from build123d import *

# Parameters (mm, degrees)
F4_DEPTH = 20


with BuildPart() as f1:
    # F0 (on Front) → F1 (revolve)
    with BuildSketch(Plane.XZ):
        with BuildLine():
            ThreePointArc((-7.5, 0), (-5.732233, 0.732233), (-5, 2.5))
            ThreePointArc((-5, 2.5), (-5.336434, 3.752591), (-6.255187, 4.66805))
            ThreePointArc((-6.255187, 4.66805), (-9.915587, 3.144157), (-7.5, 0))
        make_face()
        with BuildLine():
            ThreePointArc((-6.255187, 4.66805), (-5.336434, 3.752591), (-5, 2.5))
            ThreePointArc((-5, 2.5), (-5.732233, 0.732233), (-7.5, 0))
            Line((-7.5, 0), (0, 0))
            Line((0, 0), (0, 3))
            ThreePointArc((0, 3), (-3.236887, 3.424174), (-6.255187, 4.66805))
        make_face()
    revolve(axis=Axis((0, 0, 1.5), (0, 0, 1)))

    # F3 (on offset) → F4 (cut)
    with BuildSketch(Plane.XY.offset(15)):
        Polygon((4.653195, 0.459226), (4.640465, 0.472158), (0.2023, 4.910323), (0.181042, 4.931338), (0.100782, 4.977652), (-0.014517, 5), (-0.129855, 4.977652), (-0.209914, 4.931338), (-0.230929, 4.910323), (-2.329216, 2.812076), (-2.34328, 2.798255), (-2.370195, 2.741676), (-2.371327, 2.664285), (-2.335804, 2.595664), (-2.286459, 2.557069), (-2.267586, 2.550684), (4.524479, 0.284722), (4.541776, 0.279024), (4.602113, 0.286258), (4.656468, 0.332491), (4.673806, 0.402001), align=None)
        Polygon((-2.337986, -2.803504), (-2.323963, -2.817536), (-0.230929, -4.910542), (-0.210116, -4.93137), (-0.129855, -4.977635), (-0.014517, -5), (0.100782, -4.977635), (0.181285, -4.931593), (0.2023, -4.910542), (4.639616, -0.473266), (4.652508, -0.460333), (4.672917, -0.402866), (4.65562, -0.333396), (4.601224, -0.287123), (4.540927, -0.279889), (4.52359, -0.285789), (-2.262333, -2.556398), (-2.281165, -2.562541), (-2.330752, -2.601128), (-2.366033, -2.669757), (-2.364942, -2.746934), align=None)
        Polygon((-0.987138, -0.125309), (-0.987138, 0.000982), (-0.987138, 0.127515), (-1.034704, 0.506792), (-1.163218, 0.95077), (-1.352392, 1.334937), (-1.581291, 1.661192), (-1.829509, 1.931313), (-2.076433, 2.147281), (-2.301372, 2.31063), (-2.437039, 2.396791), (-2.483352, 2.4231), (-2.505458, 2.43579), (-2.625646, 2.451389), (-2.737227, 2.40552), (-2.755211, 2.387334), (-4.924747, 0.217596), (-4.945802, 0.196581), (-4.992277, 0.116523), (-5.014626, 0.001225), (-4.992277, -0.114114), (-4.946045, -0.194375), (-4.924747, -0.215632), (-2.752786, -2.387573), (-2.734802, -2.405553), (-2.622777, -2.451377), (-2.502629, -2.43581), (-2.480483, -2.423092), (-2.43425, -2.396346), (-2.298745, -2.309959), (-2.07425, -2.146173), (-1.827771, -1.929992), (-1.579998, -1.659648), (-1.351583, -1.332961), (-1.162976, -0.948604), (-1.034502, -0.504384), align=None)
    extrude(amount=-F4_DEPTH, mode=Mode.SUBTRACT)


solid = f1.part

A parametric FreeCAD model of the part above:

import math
import FreeCAD as App
import Part
import Sketcher
Q = App.Units.Quantity


def add_polygon(sketch, points):
    """Adds a closed chain of lines whose ends are joined by coincident constraints."""
    first, n = sketch.GeometryCount, len(points)
    for a, b in zip(points, points[1:] + points[:1]):
        sketch.addGeometry(Part.LineSegment(App.Vector(*a, 0), App.Vector(*b, 0)), False)
    for i in range(n):
        sketch.addConstraint(Sketcher.Constraint("Coincident", first + i, 2, first + (i + 1) % n, 1))

doc = App.newDocument("Part")
params = doc.addObject("Spreadsheet::Sheet", "Params")
for row, (alias, value) in enumerate([
    ("sketch1_radius", "2.5 mm"),
    ("sketch1_height", "3 mm"),
    ("sketch1_width", "7.5 mm"),
    ("revolution_angle", "360 deg"),
    ("pocket1_length", "20 mm"),
], start=1):
    params.set(f"A{row}", alias)
    params.set(f"B{row}", "=" + value)
    params.setAlias(f"B{row}", alias)

body = doc.addObject("PartDesign::Body", "Body")

# Sketch on XZ plane
sketch1 = body.newObject("Sketcher::SketchObject", "Sketch")
sketch1.AttachmentSupport = (doc.getObject("XZ_Plane"), [""])
sketch1.MapMode = "FlatFace"
sketch1.addGeometry(Part.ArcOfCircle(Part.Circle(App.Vector(-7.5, 2.5, 0), App.Vector(0, 0, 1), 2.5), math.radians(60), math.radians(270)), False)
sketch1.addGeometry(Part.LineSegment(App.Vector(-7.5, 0, 0), App.Vector(0, 0, 0)), False)
sketch1.addGeometry(Part.LineSegment(App.Vector(0, 0, 0), App.Vector(0, 3, 0)), False)
sketch1.addGeometry(Part.ArcOfCircle(Part.Circle(App.Vector(0, 15.6, 0), App.Vector(0, 0, 1), 12.6), math.radians(-120), math.radians(-90)), False)
sketch1.addConstraint(Sketcher.Constraint("Tangent", 0, 2, 1, 1))
sketch1.addConstraint(Sketcher.Constraint("Coincident", 1, 2, 2, 1))
sketch1.addConstraint(Sketcher.Constraint("Coincident", 2, 2, 3, 2))
sketch1.addConstraint(Sketcher.Constraint("Tangent", 3, 1, 0, 1))
sketch1.addConstraint(Sketcher.Constraint("Horizontal", 1))
sketch1.addConstraint(Sketcher.Constraint("Vertical", 2))
sketch1.addConstraint(Sketcher.Constraint("Coincident", 1, 2, -1, 1))
sketch1.addConstraint(Sketcher.Constraint("Radius", 0, 2.5))
sketch1.addConstraint(Sketcher.Constraint("DistanceY", 2, 1, 2, 2, 3.0))
sketch1.addConstraint(Sketcher.Constraint("DistanceX", 1, 1, 1, 2, 7.5))
sketch1.addConstraint(Sketcher.Constraint("Radius", 3, 12.562512))
sketch1.setExpression("Constraints[7]", "Params.sketch1_radius")
sketch1.setExpression("Constraints[8]", "Params.sketch1_height")
sketch1.setExpression("Constraints[9]", "Params.sketch1_width")
revolution = body.newObject("PartDesign::Revolution", "Revolution")
revolution.Profile = sketch1
revolution.ReferenceAxis = (sketch1, ["V_Axis"])
revolution.setExpression("Angle", "Params.revolution_angle")

# Sketch on XY plane
sketch2 = body.newObject("Sketcher::SketchObject", "Sketch001")
sketch2.AttachmentSupport = (doc.getObject("XY_Plane"), [""])
sketch2.MapMode = "FlatFace"
sketch2.AttachmentOffset = App.Placement(App.Vector(0, 0, 15), App.Rotation())
add_polygon(sketch2, [(4.653, 0.459), (4.64, 0.472), (0.202, 4.91), (0.181, 4.931), (0.101, 4.978), (-0.015, 5), (-0.13, 4.978), (-0.21, 4.931), (-0.231, 4.91), (-2.329, 2.812), (-2.343, 2.798), (-2.37, 2.742), (-2.371, 2.664), (-2.336, 2.596), (-2.286, 2.557), (-2.268, 2.551), (4.524, 0.285), (4.542, 0.279), (4.602, 0.286), (4.656, 0.332), (4.674, 0.402)])  # lines 0-20
add_polygon(sketch2, [(-2.338, -2.804), (-2.324, -2.818), (-0.231, -4.911), (-0.21, -4.931), (-0.13, -4.978), (-0.015, -5), (0.101, -4.978), (0.181, -4.932), (0.202, -4.911), (4.64, -0.473), (4.653, -0.46), (4.673, -0.403), (4.656, -0.333), (4.601, -0.287), (4.541, -0.28), (4.524, -0.286), (-2.262, -2.556), (-2.281, -2.563), (-2.331, -2.601), (-2.366, -2.67), (-2.365, -2.747)])  # lines 21-41
add_polygon(sketch2, [(-0.987, -0.125), (-0.987, 0.128), (-1.035, 0.507), (-1.163, 0.951), (-1.352, 1.335), (-1.581, 1.661), (-1.83, 1.931), (-2.076, 2.147), (-2.301, 2.311), (-2.437, 2.397), (-2.483, 2.423), (-2.505, 2.436), (-2.626, 2.451), (-2.737, 2.406), (-2.755, 2.387), (-4.925, 0.218), (-4.946, 0.197), (-4.992, 0.117), (-5.015, 0.001), (-4.992, -0.114), (-4.946, -0.194), (-4.925, -0.216), (-2.753, -2.388), (-2.735, -2.406), (-2.623, -2.451), (-2.503, -2.436), (-2.48, -2.423), (-2.434, -2.396), (-2.299, -2.31), (-2.074, -2.146), (-1.828, -1.93), (-1.58, -1.66), (-1.352, -1.333), (-1.163, -0.949), (-1.035, -0.504)])  # lines 42-76
sketch2.addConstraint(Sketcher.Constraint("Vertical", 42))
sketch2.addConstraint(Sketcher.Constraint("Symmetric", 4, 2, 25, 2, -1))
sketch2.addConstraint(Sketcher.Constraint("Perpendicular", 1, 7))
sketch2.addConstraint(Sketcher.Constraint("Horizontal", 3, 2, 5, 2))
sketch2.addConstraint(Sketcher.Constraint("Horizontal", 2, 2, 6, 2))
sketch2.addConstraint(Sketcher.Constraint("Horizontal", 1, 2, 7, 2))
sketch2.addConstraint(Sketcher.Constraint("Horizontal", 24, 2, 26, 2))
sketch2.addConstraint(Sketcher.Constraint("Horizontal", 22, 2, 28, 2))
sketch2.addConstraint(Sketcher.Constraint("Vertical", 7, 2, 22, 2))
sketch2.addConstraint(Sketcher.Constraint("Vertical", 5, 2, 24, 2))
sketch2.addConstraint(Sketcher.Constraint("Vertical", 3, 2, 26, 2))
sketch2.addConstraint(Sketcher.Constraint("Vertical", 1, 2, 28, 2))
sketch2.addConstraint(Sketcher.Constraint("Vertical", 58, 2, 60, 2))
sketch2.addConstraint(Sketcher.Constraint("Vertical", 56, 2, 62, 2))
sketch2.addConstraint(Sketcher.Constraint("Equal", 4, 59))
sketch2.addConstraint(Sketcher.Constraint("Equal", 5, 60))
sketch2.addConstraint(Sketcher.Constraint("Angle", 1, Q("135 deg")))
sketch2.addConstraint(Sketcher.Constraint("DistanceY", -1, 1, 4, 2, 5.0))
sketch2.addConstraint(Sketcher.Constraint("Angle", 59, Q("-100.969992 deg")))
sketch2.addConstraint(Sketcher.Constraint("DistanceY", -1, 1, 19, 2, 0.402001))
sketch2.addConstraint(Sketcher.Constraint("Distance", 11, 0.077399))
sketch2.addConstraint(Sketcher.Constraint("Distance", 69, 0.160699))
sketch2.addConstraint(Sketcher.Constraint("DistanceX", -1, 1, 1, 2, 0.2023))
sketch2.addConstraint(Sketcher.Constraint("DistanceY", 36, 2, -1, 1, 2.556398))
sketch2.addConstraint(Sketcher.Constraint("DistanceY", -1, 1, 51, 2, 2.4231))
sketch2.addConstraint(Sketcher.Constraint("DistanceX", 57, 2, -1, 1, 4.945802))
sketch2.addConstraint(Sketcher.Constraint("Distance", 6, 0.09249))
sketch2.addConstraint(Sketcher.Constraint("Distance", 7, 0.02972))
sketch2.addConstraint(Sketcher.Constraint("Distance", 9, 0.019718))
sketch2.addConstraint(Sketcher.Constraint("Distance", 12, 0.07727))
sketch2.addConstraint(Sketcher.Constraint("Distance", 15, 7.160079))
sketch2.addConstraint(Sketcher.Constraint("Distance", 16, 0.018211))
sketch2.addConstraint(Sketcher.Constraint("Distance", 17, 0.060769))
sketch2.addConstraint(Sketcher.Constraint("Distance", 19, 0.07164))
sketch2.addConstraint(Sketcher.Constraint("Distance", 24, 0.092641))
sketch2.addConstraint(Sketcher.Constraint("Distance", 26, 0.117448))
sketch2.addConstraint(Sketcher.Constraint("Distance", 27, 0.092739))
sketch2.addConstraint(Sketcher.Constraint("Distance", 30, 0.018261))
sketch2.addConstraint(Sketcher.Constraint("Distance", 32, 0.071591))
sketch2.addConstraint(Sketcher.Constraint("Distance", 34, 0.060729))
sketch2.addConstraint(Sketcher.Constraint("Distance", 37, 0.019809))
sketch2.addConstraint(Sketcher.Constraint("Distance", 38, 0.062832))
sketch2.addConstraint(Sketcher.Constraint("Distance", 43, 0.382248))
sketch2.addConstraint(Sketcher.Constraint("Distance", 45, 0.428219))
sketch2.addConstraint(Sketcher.Constraint("Distance", 47, 0.366848))
sketch2.addConstraint(Sketcher.Constraint("Distance", 52, 0.025489))
sketch2.addConstraint(Sketcher.Constraint("Distance", 54, 0.120641))
sketch2.addConstraint(Sketcher.Constraint("Distance", 56, 3.06833))
sketch2.addConstraint(Sketcher.Constraint("Distance", 58, 0.09257))
sketch2.addConstraint(Sketcher.Constraint("Distance", 62, 0.030091))
sketch2.addConstraint(Sketcher.Constraint("Distance", 64, 0.02543))
sketch2.addConstraint(Sketcher.Constraint("Distance", 67, 0.025538))
sketch2.addConstraint(Sketcher.Constraint("Distance", 68, 0.053412))
sketch2.addConstraint(Sketcher.Constraint("Distance", 70, 0.277892))
sketch2.addConstraint(Sketcher.Constraint("Distance", 71, 0.327851))
sketch2.addConstraint(Sketcher.Constraint("Distance", 72, 0.366712))
sketch2.addConstraint(Sketcher.Constraint("Distance", 73, 0.39862))
sketch2.addConstraint(Sketcher.Constraint("Distance", 74, 0.428139))
sketch2.addConstraint(Sketcher.Constraint("DistanceY", 42, 1, 42, 2, 0.252824))
sketch2.addConstraint(Sketcher.Constraint("DistanceY", -1, 1, 2, 2, 4.931338))
sketch2.addConstraint(Sketcher.Constraint("DistanceX", 7, 2, -1, 1, 0.230929))
sketch2.addConstraint(Sketcher.Constraint("DistanceX", 9, 2, -1, 1, 2.34328))
sketch2.addConstraint(Sketcher.Constraint("DistanceX", 13, 2, -1, 1, 2.286459))
sketch2.addConstraint(Sketcher.Constraint("DistanceY", -1, 1, 13, 2, 2.557069))
sketch2.addConstraint(Sketcher.Constraint("DistanceX", -1, 1, 15, 2, 4.524479))
sketch2.addConstraint(Sketcher.Constraint("DistanceX", -1, 1, 18, 2, 4.656468))
sketch2.addConstraint(Sketcher.Constraint("DistanceY", -1, 1, 18, 2, 0.332491))
sketch2.addConstraint(Sketcher.Constraint("DistanceY", 23, 2, -1, 1, 4.93137))
sketch2.addConstraint(Sketcher.Constraint("DistanceX", -1, 1, 32, 2, 4.65562))
sketch2.addConstraint(Sketcher.Constraint("DistanceY", 34, 2, -1, 1, 0.279889))
sketch2.addConstraint(Sketcher.Constraint("DistanceX", -1, 1, 35, 2, 4.52359))
sketch2.addConstraint(Sketcher.Constraint("DistanceY", 35, 2, -1, 1, 0.285789))
sketch2.addConstraint(Sketcher.Constraint("DistanceY", 37, 2, -1, 1, 2.562541))
sketch2.addConstraint(Sketcher.Constraint("DistanceX", 38, 2, -1, 1, 2.330752))
sketch2.addConstraint(Sketcher.Constraint("DistanceY", 38, 2, -1, 1, 2.601128))
sketch2.addConstraint(Sketcher.Constraint("DistanceX", 44, 2, -1, 1, 1.163218))
sketch2.addConstraint(Sketcher.Constraint("DistanceY", -1, 1, 44, 2, 0.95077))
sketch2.addConstraint(Sketcher.Constraint("DistanceX", 46, 2, -1, 1, 1.581291))
sketch2.addConstraint(Sketcher.Constraint("DistanceX", 47, 2, -1, 1, 1.829509))
sketch2.addConstraint(Sketcher.Constraint("DistanceY", -1, 1, 48, 2, 2.147281))
sketch2.addConstraint(Sketcher.Constraint("DistanceY", -1, 1, 49, 2, 2.31063))
sketch2.addConstraint(Sketcher.Constraint("DistanceX", 50, 2, -1, 1, 2.437039))
sketch2.addConstraint(Sketcher.Constraint("DistanceY", -1, 1, 50, 2, 2.396791))
sketch2.addConstraint(Sketcher.Constraint("DistanceX", 51, 2, -1, 1, 2.483352))
sketch2.addConstraint(Sketcher.Constraint("DistanceX", 52, 2, -1, 1, 2.505458))
sketch2.addConstraint(Sketcher.Constraint("DistanceY", -1, 1, 53, 2, 2.451389))
sketch2.addConstraint(Sketcher.Constraint("DistanceY", -1, 1, 54, 2, 2.40552))
sketch2.addConstraint(Sketcher.Constraint("DistanceX", 55, 2, -1, 1, 2.755211))
sketch2.addConstraint(Sketcher.Constraint("DistanceY", -1, 1, 57, 2, 0.196581))
sketch2.addConstraint(Sketcher.Constraint("DistanceX", 66, 2, -1, 1, 2.502629))
sketch2.addConstraint(Sketcher.Constraint("DistanceY", 66, 2, -1, 1, 2.43581))
sketch2.addConstraint(Sketcher.Constraint("DistanceY", 67, 2, -1, 1, 2.423092))
sketch2.addConstraint(Sketcher.Constraint("DistanceX", 68, 2, -1, 1, 2.43425))
sketch2.addConstraint(Sketcher.Constraint("DistanceY", 69, 2, -1, 1, 2.309959))
sketch2.addConstraint(Sketcher.Constraint("DistanceX", 70, 2, -1, 1, 2.07425))
sketch2.addConstraint(Sketcher.Constraint("DistanceX", 71, 2, -1, 1, 1.827771))
sketch2.addConstraint(Sketcher.Constraint("DistanceY", 73, 2, -1, 1, 1.332961))
sketch2.addConstraint(Sketcher.Constraint("DistanceY", 76, 2, -1, 1, 0.125309))
sketch2.addConstraint(Sketcher.Constraint("Distance", 0, 0.018146))
sketch2.addConstraint(Sketcher.Constraint("Distance", 1, 6.276513))
sketch2.addConstraint(Sketcher.Constraint("Distance", 2, 0.029892))
sketch2.addConstraint(Sketcher.Constraint("Distance", 3, 0.092664))
sketch2.addConstraint(Sketcher.Constraint("Distance", 4, 0.117445))
sketch2.addConstraint(Sketcher.Constraint("Distance", 5, 0.117483))
sketch2.addConstraint(Sketcher.Constraint("Distance", 8, 2.967398))
sketch2.addConstraint(Sketcher.Constraint("Distance", 10, 0.062655))
sketch2.addConstraint(Sketcher.Constraint("Distance", 13, 0.062646))
sketch2.addConstraint(Sketcher.Constraint("Distance", 14, 0.019924))
sketch2.addConstraint(Sketcher.Constraint("Distance", 18, 0.071358))
sketch2.addConstraint(Sketcher.Constraint("Distance", 20, 0.060824))
sketch2.addConstraint(Sketcher.Constraint("Distance", 21, 0.019838))
sketch2.addConstraint(Sketcher.Constraint("Distance", 22, 2.959977))
sketch2.addConstraint(Sketcher.Constraint("Distance", 23, 0.029445))
sketch2.addConstraint(Sketcher.Constraint("Distance", 28, 0.029745))
sketch2.addConstraint(Sketcher.Constraint("Distance", 29, 6.275284))
sketch2.addConstraint(Sketcher.Constraint("Distance", 31, 0.060983))
sketch2.addConstraint(Sketcher.Constraint("Distance", 33, 0.071415))
sketch2.addConstraint(Sketcher.Constraint("Distance", 35, 0.018313))
sketch2.addConstraint(Sketcher.Constraint("Distance", 39, 0.077167))
sketch2.addConstraint(Sketcher.Constraint("Distance", 40, 0.077185))
sketch2.addConstraint(Sketcher.Constraint("Distance", 41, 0.062664))
sketch2.addConstraint(Sketcher.Constraint("Distance", 44, 0.462204))
sketch2.addConstraint(Sketcher.Constraint("Distance", 46, 0.398544))
sketch2.addConstraint(Sketcher.Constraint("Distance", 48, 0.328045))
sketch2.addConstraint(Sketcher.Constraint("Distance", 49, 0.277994))
sketch2.addConstraint(Sketcher.Constraint("Distance", 50, 0.160715))
sketch2.addConstraint(Sketcher.Constraint("Distance", 53, 0.121196))
sketch2.addConstraint(Sketcher.Constraint("Distance", 55, 0.025576))
sketch2.addConstraint(Sketcher.Constraint("Distance", 61, 0.092624))
sketch2.addConstraint(Sketcher.Constraint("Distance", 63, 3.071603))
sketch2.addConstraint(Sketcher.Constraint("Distance", 65, 0.121035))
sketch2.addConstraint(Sketcher.Constraint("Distance", 66, 0.121152))
sketch2.addConstraint(Sketcher.Constraint("Distance", 75, 0.462425))
sketch2.addConstraint(Sketcher.Constraint("Distance", 76, 0.382023))
sketch2.addConstraint(Sketcher.Constraint("DistanceX", 8, 2, -1, 1, 2.329216))
sketch2.addConstraint(Sketcher.Constraint("DistanceX", 10, 2, -1, 1, 2.370195))
sketch2.addConstraint(Sketcher.Constraint("DistanceX", 11, 2, -1, 1, 2.371327))
sketch2.addConstraint(Sketcher.Constraint("DistanceX", 14, 2, -1, 1, 2.267586))
sketch2.addConstraint(Sketcher.Constraint("DistanceX", -1, 1, 16, 2, 4.541776))
sketch2.addConstraint(Sketcher.Constraint("DistanceX", 21, 2, -1, 1, 2.323963))
sketch2.addConstraint(Sketcher.Constraint("DistanceX", -1, 1, 29, 2, 4.639616))
sketch2.addConstraint(Sketcher.Constraint("DistanceX", -1, 1, 30, 2, 4.652508))
sketch2.addConstraint(Sketcher.Constraint("DistanceX", -1, 1, 31, 2, 4.672917))
sketch2.addConstraint(Sketcher.Constraint("DistanceX", 39, 2, -1, 1, 2.366033))
sketch2.addConstraint(Sketcher.Constraint("DistanceX", 40, 2, -1, 1, 2.364942))
sketch2.addConstraint(Sketcher.Constraint("DistanceX", 42, 2, -1, 1, 0.987138))
sketch2.addConstraint(Sketcher.Constraint("DistanceX", 56, 2, -1, 1, 4.924747))
sketch2.addConstraint(Sketcher.Constraint("DistanceX", 58, 2, -1, 1, 4.992277))
sketch2.addConstraint(Sketcher.Constraint("DistanceX", 61, 2, -1, 1, 4.946045))
sketch2.addConstraint(Sketcher.Constraint("DistanceX", 63, 2, -1, 1, 2.752786))
sketch2.addConstraint(Sketcher.Constraint("DistanceX", 64, 2, -1, 1, 2.734802))
sketch2.addConstraint(Sketcher.Constraint("DistanceX", 72, 2, -1, 1, 1.579998))
sketch2.addConstraint(Sketcher.Constraint("DistanceX", 74, 2, -1, 1, 1.162976))
pocket1 = body.newObject("PartDesign::Pocket", "Pocket")
pocket1.Profile = sketch2
pocket1.setExpression("Length", "Params.pocket1_length")

doc.recompute()
